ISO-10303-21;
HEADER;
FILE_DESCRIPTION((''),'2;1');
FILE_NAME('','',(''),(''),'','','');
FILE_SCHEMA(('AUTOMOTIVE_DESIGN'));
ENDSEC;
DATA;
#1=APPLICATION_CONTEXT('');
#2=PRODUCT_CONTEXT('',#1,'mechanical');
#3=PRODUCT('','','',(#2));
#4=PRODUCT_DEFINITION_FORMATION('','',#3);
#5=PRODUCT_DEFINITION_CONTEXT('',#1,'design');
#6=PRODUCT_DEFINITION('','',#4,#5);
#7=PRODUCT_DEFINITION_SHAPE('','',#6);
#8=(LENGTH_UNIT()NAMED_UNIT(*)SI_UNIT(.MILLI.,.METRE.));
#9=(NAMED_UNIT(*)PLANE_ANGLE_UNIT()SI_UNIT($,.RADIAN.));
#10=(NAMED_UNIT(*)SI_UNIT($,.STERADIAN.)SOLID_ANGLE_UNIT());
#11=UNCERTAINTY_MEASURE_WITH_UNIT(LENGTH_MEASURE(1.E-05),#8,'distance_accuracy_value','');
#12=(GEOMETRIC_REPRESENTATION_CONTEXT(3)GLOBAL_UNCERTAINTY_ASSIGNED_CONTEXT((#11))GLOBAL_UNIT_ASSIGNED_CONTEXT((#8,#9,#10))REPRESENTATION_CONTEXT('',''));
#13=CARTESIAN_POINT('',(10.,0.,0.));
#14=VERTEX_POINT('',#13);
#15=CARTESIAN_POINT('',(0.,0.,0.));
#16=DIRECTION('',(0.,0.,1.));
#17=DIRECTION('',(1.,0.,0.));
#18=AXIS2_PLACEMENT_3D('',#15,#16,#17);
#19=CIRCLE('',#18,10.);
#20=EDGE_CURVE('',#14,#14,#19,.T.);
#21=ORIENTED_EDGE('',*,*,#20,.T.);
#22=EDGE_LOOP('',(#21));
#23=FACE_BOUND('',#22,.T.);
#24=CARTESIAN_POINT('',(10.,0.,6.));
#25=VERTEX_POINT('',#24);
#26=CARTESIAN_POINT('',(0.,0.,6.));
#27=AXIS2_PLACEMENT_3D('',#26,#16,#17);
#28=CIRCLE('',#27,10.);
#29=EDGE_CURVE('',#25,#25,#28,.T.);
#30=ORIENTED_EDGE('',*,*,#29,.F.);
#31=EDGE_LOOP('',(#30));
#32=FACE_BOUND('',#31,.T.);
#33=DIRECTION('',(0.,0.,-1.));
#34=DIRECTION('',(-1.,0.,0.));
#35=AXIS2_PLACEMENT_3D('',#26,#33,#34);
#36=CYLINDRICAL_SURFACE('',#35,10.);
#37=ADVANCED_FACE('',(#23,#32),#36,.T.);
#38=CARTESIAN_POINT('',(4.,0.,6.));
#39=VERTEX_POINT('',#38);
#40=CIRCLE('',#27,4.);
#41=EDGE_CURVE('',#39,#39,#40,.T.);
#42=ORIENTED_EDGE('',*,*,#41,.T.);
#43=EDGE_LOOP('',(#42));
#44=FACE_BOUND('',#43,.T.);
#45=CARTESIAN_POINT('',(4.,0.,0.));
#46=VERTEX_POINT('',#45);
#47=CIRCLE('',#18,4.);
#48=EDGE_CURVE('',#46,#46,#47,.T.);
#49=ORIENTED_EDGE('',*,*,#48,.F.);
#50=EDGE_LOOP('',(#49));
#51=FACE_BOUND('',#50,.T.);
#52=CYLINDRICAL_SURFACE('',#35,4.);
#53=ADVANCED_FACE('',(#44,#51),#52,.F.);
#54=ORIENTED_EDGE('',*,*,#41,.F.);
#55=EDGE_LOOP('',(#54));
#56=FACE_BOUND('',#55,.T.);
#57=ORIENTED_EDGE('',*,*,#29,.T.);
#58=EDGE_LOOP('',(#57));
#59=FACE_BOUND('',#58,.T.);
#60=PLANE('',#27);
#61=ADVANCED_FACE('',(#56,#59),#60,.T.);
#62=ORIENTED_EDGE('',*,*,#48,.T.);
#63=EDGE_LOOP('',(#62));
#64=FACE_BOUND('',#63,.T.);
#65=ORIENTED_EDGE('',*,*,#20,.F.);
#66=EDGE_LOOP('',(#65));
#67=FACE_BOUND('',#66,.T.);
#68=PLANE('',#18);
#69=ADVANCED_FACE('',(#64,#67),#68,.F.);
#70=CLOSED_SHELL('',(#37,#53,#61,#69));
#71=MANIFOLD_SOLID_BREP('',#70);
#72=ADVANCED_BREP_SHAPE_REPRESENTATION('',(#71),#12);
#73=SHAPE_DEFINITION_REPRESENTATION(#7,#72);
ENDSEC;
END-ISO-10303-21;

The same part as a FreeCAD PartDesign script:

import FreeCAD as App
import Part
import Sketcher

V = App.Vector

doc = App.newDocument("Part")
body = doc.addObject("PartDesign::Body", "Body")

# Sketch on XY plane
sketch1 = body.newObject("Sketcher::SketchObject", "Sketch")
sketch1.AttachmentSupport = (doc.getObject("XY_Plane"), [""])
sketch1.MapMode = "FlatFace"
sketch1.addGeometry([
    Part.Circle(V(0, 0, 0), V(0, 0, 1), 10),
    Part.Circle(V(0, 0, 0), V(0, 0, 1), 4),
], False)
sketch1.addConstraint([
    Sketcher.Constraint("Coincident", 0, 3, -1, 1),
    Sketcher.Constraint("Coincident", 1, 3, -1, 1),
    Sketcher.Constraint("Diameter", 0, 20.0),
    Sketcher.Constraint("Diameter", 1, 8.0),
])
pad1 = body.newObject("PartDesign::Pad", "Pad")
pad1.Profile = sketch1
pad1.Length = 6

doc.recompute()
